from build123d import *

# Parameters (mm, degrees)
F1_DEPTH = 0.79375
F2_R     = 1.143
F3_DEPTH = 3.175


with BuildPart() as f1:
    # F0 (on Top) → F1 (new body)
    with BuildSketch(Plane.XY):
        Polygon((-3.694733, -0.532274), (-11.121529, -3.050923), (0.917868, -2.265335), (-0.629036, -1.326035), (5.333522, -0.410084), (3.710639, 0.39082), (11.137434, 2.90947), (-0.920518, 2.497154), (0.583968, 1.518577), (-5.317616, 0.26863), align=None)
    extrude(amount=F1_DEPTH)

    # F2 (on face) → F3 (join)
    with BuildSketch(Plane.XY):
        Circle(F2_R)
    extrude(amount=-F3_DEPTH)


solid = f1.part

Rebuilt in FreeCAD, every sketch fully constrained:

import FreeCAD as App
import Part
import Sketcher
from FreeCAD import Vector
Q = App.Units.Quantity

doc = App.newDocument("Part")
body = doc.addObject("PartDesign::Body", "Body")

sketch1 = body.newObject("Sketcher::SketchObject", "Sketch")
sketch1.AttachmentSupport = (doc.getObject("XY_Plane"), [""])
sketch1.MapMode = "FlatFace"
sketch1.addGeometry([
    Part.LineSegment(Vector(-3.7, -0.5, 0), Vector(-11.1, -3.1, 0)),
    Part.LineSegment(Vector(-11.1, -3.1, 0), Vector(0.9, -2.3, 0)),
    Part.LineSegment(Vector(0.9, -2.3, 0), Vector(-0.6, -1.3, 0)),
    Part.LineSegment(Vector(-0.6, -1.3, 0), Vector(5.3, -0.4, 0)),
    Part.LineSegment(Vector(5.3, -0.4, 0), Vector(3.7, 0.4, 0)),
    Part.LineSegment(Vector(3.7, 0.4, 0), Vector(11.1, 2.9, 0)),
    Part.LineSegment(Vector(11.1, 2.9, 0), Vector(-0.9, 2.5, 0)),
    Part.LineSegment(Vector(-0.9, 2.5, 0), Vector(0.6, 1.5, 0)),
    Part.LineSegment(Vector(0.6, 1.5, 0), Vector(-5.3, 0.3, 0)),
    Part.LineSegment(Vector(-5.3, 0.3, 0), Vector(-3.7, -0.5, 0)),
], False)
sketch1.addConstraint([
    Sketcher.Constraint("Coincident", 0, 2, 1, 1),
    Sketcher.Constraint("Coincident", 1, 2, 2, 1),
    Sketcher.Constraint("Coincident", 2, 2, 3, 1),
    Sketcher.Constraint("Coincident", 3, 2, 4, 1),
    Sketcher.Constraint("Coincident", 4, 2, 5, 1),
    Sketcher.Constraint("Coincident", 5, 2, 6, 1),
    Sketcher.Constraint("Coincident", 6, 2, 7, 1),
    Sketcher.Constraint("Coincident", 7, 2, 8, 1),
    Sketcher.Constraint("Coincident", 8, 2, 9, 1),
    Sketcher.Constraint("Coincident", 9, 2, 0, 1),
    Sketcher.Constraint("Parallel", 0, 5),
    Sketcher.Constraint("Parallel", 4, 9),
    Sketcher.Constraint("Equal", 2, 4),
    Sketcher.Constraint("Equal", 0, 5),
    Sketcher.Constraint("Equal", 1, 6),
    Sketcher.Constraint("Equal", 3, 8),
    Sketcher.Constraint("Equal", 4, 9),
    Sketcher.Constraint("Distance", 1, Q("0.475 in")),
    Sketcher.Constraint("Distance", 3, Q("0.2375 in")),
    Sketcher.Constraint("DistanceY", 4, 2, 7, 2, Q("0.0443999 in")),
    Sketcher.Constraint("DistanceY", 1, 2, 2, 2, Q("0.9393 mm")),
    Sketcher.Constraint("DistanceX", 7, 2, 1, 2, Q("0.3339 mm")),
    Sketcher.Constraint("DistanceX", 9, 2, 7, 2, Q("4.278701 mm")),
    Sketcher.Constraint("Distance", 0, Q("7.84225 mm")),
    Sketcher.Constraint("Distance", 2, Q("1.80975 mm")),
    Sketcher.Constraint("Distance", 7, Q("1.79474 mm")),
    Sketcher.Constraint("DistanceX", 0, 2, -1, 1, Q("11.121529 mm")),
    Sketcher.Constraint("DistanceX", -1, 1, 1, 2, Q("0.917868 mm")),
    Sketcher.Constraint("DistanceX", -1, 1, 4, 2, Q("3.710639 mm")),
    Sketcher.Constraint("DistanceY", -1, 1, 4, 2, Q("0.39082 mm")),
])
pad1 = body.newObject("PartDesign::Pad", "Pad")
pad1.Profile = sketch1
pad1.Length = Q("0.03125 in")

sketch2 = body.newObject("Sketcher::SketchObject", "Sketch001")
sketch2.AttachmentSupport = (doc.getObject("XY_Plane"), [""])
sketch2.MapMode = "FlatFace"
sketch2.addGeometry(Part.Circle(Vector(0, 0, 0), Vector(0, 0, 1), 1.1), False)
sketch2.addConstraint([
    Sketcher.Constraint("Coincident", 0, 3, -1, 1),
    Sketcher.Constraint("Diameter", 0, Q("0.09 in")),
])
pad2 = body.newObject("PartDesign::Pad", "Pad001")
pad2.Profile = sketch2
pad2.Length = Q("0.125 in")
pad2.Reversed = True

doc.recompute()
